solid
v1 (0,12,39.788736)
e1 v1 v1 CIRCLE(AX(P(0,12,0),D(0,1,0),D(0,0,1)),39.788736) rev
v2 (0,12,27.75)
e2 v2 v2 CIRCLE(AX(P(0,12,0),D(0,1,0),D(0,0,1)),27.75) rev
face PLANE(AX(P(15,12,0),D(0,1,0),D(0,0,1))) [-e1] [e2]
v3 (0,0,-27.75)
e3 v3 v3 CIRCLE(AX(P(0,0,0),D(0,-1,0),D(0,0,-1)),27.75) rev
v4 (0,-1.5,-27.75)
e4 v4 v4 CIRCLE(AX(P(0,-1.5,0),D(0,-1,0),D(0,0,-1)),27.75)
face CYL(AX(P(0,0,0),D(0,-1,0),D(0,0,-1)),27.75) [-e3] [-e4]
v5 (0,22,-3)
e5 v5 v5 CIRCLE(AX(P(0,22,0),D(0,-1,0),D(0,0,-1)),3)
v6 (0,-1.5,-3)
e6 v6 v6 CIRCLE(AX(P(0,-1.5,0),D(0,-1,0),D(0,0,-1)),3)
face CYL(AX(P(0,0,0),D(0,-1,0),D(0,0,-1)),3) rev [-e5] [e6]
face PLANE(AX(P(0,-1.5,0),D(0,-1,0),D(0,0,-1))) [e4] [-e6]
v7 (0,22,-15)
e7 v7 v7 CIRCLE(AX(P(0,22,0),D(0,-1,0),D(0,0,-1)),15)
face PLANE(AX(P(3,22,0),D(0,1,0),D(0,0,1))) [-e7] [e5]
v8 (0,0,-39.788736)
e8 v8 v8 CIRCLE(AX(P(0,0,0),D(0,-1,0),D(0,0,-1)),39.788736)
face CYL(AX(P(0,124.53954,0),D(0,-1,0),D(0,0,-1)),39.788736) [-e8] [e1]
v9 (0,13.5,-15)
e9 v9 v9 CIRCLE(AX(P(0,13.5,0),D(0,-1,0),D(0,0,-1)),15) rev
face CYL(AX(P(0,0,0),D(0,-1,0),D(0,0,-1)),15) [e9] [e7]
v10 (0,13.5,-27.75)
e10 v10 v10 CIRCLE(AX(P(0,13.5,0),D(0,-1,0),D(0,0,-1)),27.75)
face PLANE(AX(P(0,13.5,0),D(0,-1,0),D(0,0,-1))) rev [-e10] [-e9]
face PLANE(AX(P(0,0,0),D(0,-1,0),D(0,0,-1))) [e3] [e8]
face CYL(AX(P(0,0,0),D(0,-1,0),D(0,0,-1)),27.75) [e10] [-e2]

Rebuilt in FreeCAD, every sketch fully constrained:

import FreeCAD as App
import Part
import Sketcher
Q = App.Units.Quantity

doc = App.newDocument("Part")
params = doc.addObject("Spreadsheet::Sheet", "Params")
for row, (alias, value) in enumerate([
    ("sketch1_width", "12 mm"),
    ("sketch1_height", "22 mm"),
    ("sketch1_width2", "24.75 mm"),
    ("revolution_angle", "360 deg"),
    ("sketch2_diameter", "55.5 mm"),
    ("pad1_length", "12 mm"),
    ("sketch3_diameter", "6 mm"),
    ("sketch3_diameter2", "55.5 mm"),
    ("pad2_length", "15 mm"),
], start=1):
    params.set(f"A{row}", alias)
    params.set(f"B{row}", "=" + value)
    params.setAlias(f"B{row}", alias)

body = doc.addObject("PartDesign::Body", "Body")

# Sketch on XY plane
sketch1 = body.newObject("Sketcher::SketchObject", "Sketch")
sketch1.AttachmentSupport = (doc.getObject("XY_Plane"), [""])
sketch1.MapMode = "FlatFace"
sketch1.addGeometry(Part.LineSegment(App.Vector(3, 22, 0), App.Vector(3, 0, 0)), False)
sketch1.addGeometry(Part.LineSegment(App.Vector(3, 0, 0), App.Vector(28, 0, 0)), False)
sketch1.addGeometry(Part.LineSegment(App.Vector(28, 0, 0), App.Vector(28, 12, 0)), False)
sketch1.addGeometry(Part.LineSegment(App.Vector(28, 12, 0), App.Vector(15, 12, 0)), False)
sketch1.addGeometry(Part.LineSegment(App.Vector(15, 12, 0), App.Vector(15, 22, 0)), False)
sketch1.addGeometry(Part.LineSegment(App.Vector(15, 22, 0), App.Vector(3, 22, 0)), False)
sketch1.addConstraint(Sketcher.Constraint("Coincident", 0, 2, 1, 1))
sketch1.addConstraint(Sketcher.Constraint("Coincident", 1, 2, 2, 1))
sketch1.addConstraint(Sketcher.Constraint("Coincident", 2, 2, 3, 1))
sketch1.addConstraint(Sketcher.Constraint("Coincident", 3, 2, 4, 1))
sketch1.addConstraint(Sketcher.Constraint("Coincident", 4, 2, 5, 1))
sketch1.addConstraint(Sketcher.Constraint("Coincident", 5, 2, 0, 1))
sketch1.addConstraint(Sketcher.Constraint("Vertical", 0))
sketch1.addConstraint(Sketcher.Constraint("Horizontal", 1))
sketch1.addConstraint(Sketcher.Constraint("Vertical", 2))
sketch1.addConstraint(Sketcher.Constraint("Horizontal", 3))
sketch1.addConstraint(Sketcher.Constraint("Vertical", 4))
sketch1.addConstraint(Sketcher.Constraint("Horizontal", 5))
sketch1.addConstraint(Sketcher.Constraint("PointOnObject", 0, 2, -1))
sketch1.addConstraint(Sketcher.Constraint("Equal", 5, 2))
sketch1.addConstraint(Sketcher.Constraint("DistanceX", 5, 2, 5, 1, Q("12 mm")))
sketch1.addConstraint(Sketcher.Constraint("DistanceY", 0, 2, 0, 1, Q("22 mm")))
sketch1.addConstraint(Sketcher.Constraint("DistanceX", -1, 1, 0, 2, Q("3 mm")))
sketch1.addConstraint(Sketcher.Constraint("DistanceX", 1, 1, 1, 2, Q("24.75 mm")))
sketch1.setExpression("Constraints[14]", "Params.sketch1_width")
sketch1.setExpression("Constraints[15]", "Params.sketch1_height")
sketch1.setExpression("Constraints[17]", "Params.sketch1_width2")
revolution = body.newObject("PartDesign::Revolution", "Revolution")
revolution.Profile = sketch1
revolution.ReferenceAxis = (sketch1, ["V_Axis"])
revolution.setExpression("Angle", "Params.revolution_angle")
body2 = doc.addObject("PartDesign::Body", "Body001")

# Sketch on XZ plane
sketch2 = body2.newObject("Sketcher::SketchObject", "Sketch001")
sketch2.AttachmentSupport = (doc.getObject("XZ_Plane001"), [""])
sketch2.MapMode = "FlatFace"
sketch2.addGeometry(Part.Circle(App.Vector(0, 0, 0), App.Vector(0, 0, 1), 40), False)
sketch2.addGeometry(Part.Circle(App.Vector(0, 0, 0), App.Vector(0, 0, 1), 28), False)
sketch2.addConstraint(Sketcher.Constraint("Coincident", 0, 3, -1, 1))
sketch2.addConstraint(Sketcher.Constraint("Coincident", 1, 3, -1, 1))
sketch2.addConstraint(Sketcher.Constraint("Diameter", 1, Q("55.5 mm")))
sketch2.addConstraint(Sketcher.Constraint("Diameter", 0, Q("79.577472 mm")))
sketch2.setExpression("Constraints[2]", "Params.sketch2_diameter")
pad1 = body2.newObject("PartDesign::Pad", "Pad")
pad1.Profile = sketch2
pad1.setExpression("Length", "Params.pad1_length")
pad1.Reversed = True
doc.recompute()

boolean = body.newObject("PartDesign::Boolean", "Boolean")
boolean.Type = "Fuse"
boolean.addObjects([body2])

# Sketch on XZ plane
sketch3 = body.newObject("Sketcher::SketchObject", "Sketch002")
sketch3.AttachmentSupport = (doc.getObject("XZ_Plane"), [""])
sketch3.MapMode = "FlatFace"
sketch3.AttachmentOffset = App.Placement(App.Vector(0, 0, 1.5), App.Rotation())
sketch3.addGeometry(Part.Circle(App.Vector(0, 0, 0), App.Vector(0, 0, 1), 27.8), False)
sketch3.addGeometry(Part.Circle(App.Vector(0, 0, 0), App.Vector(0, 0, 1), 3), False)
sketch3.addConstraint(Sketcher.Constraint("Coincident", 0, 3, -1, 1))
sketch3.addConstraint(Sketcher.Constraint("Coincident", 1, 3, -1, 1))
sketch3.addConstraint(Sketcher.Constraint("Diameter", 1, Q("6 mm")))
sketch3.addConstraint(Sketcher.Constraint("Diameter", 0, Q("55.5 mm")))
sketch3.setExpression("Constraints[2]", "Params.sketch3_diameter")
sketch3.setExpression("Constraints[3]", "Params.sketch3_diameter2")
pad2 = body.newObject("PartDesign::Pad", "Pad001")
pad2.Profile = sketch3
pad2.setExpression("Length", "Params.pad2_length")
pad2.Reversed = True

doc.recompute()
